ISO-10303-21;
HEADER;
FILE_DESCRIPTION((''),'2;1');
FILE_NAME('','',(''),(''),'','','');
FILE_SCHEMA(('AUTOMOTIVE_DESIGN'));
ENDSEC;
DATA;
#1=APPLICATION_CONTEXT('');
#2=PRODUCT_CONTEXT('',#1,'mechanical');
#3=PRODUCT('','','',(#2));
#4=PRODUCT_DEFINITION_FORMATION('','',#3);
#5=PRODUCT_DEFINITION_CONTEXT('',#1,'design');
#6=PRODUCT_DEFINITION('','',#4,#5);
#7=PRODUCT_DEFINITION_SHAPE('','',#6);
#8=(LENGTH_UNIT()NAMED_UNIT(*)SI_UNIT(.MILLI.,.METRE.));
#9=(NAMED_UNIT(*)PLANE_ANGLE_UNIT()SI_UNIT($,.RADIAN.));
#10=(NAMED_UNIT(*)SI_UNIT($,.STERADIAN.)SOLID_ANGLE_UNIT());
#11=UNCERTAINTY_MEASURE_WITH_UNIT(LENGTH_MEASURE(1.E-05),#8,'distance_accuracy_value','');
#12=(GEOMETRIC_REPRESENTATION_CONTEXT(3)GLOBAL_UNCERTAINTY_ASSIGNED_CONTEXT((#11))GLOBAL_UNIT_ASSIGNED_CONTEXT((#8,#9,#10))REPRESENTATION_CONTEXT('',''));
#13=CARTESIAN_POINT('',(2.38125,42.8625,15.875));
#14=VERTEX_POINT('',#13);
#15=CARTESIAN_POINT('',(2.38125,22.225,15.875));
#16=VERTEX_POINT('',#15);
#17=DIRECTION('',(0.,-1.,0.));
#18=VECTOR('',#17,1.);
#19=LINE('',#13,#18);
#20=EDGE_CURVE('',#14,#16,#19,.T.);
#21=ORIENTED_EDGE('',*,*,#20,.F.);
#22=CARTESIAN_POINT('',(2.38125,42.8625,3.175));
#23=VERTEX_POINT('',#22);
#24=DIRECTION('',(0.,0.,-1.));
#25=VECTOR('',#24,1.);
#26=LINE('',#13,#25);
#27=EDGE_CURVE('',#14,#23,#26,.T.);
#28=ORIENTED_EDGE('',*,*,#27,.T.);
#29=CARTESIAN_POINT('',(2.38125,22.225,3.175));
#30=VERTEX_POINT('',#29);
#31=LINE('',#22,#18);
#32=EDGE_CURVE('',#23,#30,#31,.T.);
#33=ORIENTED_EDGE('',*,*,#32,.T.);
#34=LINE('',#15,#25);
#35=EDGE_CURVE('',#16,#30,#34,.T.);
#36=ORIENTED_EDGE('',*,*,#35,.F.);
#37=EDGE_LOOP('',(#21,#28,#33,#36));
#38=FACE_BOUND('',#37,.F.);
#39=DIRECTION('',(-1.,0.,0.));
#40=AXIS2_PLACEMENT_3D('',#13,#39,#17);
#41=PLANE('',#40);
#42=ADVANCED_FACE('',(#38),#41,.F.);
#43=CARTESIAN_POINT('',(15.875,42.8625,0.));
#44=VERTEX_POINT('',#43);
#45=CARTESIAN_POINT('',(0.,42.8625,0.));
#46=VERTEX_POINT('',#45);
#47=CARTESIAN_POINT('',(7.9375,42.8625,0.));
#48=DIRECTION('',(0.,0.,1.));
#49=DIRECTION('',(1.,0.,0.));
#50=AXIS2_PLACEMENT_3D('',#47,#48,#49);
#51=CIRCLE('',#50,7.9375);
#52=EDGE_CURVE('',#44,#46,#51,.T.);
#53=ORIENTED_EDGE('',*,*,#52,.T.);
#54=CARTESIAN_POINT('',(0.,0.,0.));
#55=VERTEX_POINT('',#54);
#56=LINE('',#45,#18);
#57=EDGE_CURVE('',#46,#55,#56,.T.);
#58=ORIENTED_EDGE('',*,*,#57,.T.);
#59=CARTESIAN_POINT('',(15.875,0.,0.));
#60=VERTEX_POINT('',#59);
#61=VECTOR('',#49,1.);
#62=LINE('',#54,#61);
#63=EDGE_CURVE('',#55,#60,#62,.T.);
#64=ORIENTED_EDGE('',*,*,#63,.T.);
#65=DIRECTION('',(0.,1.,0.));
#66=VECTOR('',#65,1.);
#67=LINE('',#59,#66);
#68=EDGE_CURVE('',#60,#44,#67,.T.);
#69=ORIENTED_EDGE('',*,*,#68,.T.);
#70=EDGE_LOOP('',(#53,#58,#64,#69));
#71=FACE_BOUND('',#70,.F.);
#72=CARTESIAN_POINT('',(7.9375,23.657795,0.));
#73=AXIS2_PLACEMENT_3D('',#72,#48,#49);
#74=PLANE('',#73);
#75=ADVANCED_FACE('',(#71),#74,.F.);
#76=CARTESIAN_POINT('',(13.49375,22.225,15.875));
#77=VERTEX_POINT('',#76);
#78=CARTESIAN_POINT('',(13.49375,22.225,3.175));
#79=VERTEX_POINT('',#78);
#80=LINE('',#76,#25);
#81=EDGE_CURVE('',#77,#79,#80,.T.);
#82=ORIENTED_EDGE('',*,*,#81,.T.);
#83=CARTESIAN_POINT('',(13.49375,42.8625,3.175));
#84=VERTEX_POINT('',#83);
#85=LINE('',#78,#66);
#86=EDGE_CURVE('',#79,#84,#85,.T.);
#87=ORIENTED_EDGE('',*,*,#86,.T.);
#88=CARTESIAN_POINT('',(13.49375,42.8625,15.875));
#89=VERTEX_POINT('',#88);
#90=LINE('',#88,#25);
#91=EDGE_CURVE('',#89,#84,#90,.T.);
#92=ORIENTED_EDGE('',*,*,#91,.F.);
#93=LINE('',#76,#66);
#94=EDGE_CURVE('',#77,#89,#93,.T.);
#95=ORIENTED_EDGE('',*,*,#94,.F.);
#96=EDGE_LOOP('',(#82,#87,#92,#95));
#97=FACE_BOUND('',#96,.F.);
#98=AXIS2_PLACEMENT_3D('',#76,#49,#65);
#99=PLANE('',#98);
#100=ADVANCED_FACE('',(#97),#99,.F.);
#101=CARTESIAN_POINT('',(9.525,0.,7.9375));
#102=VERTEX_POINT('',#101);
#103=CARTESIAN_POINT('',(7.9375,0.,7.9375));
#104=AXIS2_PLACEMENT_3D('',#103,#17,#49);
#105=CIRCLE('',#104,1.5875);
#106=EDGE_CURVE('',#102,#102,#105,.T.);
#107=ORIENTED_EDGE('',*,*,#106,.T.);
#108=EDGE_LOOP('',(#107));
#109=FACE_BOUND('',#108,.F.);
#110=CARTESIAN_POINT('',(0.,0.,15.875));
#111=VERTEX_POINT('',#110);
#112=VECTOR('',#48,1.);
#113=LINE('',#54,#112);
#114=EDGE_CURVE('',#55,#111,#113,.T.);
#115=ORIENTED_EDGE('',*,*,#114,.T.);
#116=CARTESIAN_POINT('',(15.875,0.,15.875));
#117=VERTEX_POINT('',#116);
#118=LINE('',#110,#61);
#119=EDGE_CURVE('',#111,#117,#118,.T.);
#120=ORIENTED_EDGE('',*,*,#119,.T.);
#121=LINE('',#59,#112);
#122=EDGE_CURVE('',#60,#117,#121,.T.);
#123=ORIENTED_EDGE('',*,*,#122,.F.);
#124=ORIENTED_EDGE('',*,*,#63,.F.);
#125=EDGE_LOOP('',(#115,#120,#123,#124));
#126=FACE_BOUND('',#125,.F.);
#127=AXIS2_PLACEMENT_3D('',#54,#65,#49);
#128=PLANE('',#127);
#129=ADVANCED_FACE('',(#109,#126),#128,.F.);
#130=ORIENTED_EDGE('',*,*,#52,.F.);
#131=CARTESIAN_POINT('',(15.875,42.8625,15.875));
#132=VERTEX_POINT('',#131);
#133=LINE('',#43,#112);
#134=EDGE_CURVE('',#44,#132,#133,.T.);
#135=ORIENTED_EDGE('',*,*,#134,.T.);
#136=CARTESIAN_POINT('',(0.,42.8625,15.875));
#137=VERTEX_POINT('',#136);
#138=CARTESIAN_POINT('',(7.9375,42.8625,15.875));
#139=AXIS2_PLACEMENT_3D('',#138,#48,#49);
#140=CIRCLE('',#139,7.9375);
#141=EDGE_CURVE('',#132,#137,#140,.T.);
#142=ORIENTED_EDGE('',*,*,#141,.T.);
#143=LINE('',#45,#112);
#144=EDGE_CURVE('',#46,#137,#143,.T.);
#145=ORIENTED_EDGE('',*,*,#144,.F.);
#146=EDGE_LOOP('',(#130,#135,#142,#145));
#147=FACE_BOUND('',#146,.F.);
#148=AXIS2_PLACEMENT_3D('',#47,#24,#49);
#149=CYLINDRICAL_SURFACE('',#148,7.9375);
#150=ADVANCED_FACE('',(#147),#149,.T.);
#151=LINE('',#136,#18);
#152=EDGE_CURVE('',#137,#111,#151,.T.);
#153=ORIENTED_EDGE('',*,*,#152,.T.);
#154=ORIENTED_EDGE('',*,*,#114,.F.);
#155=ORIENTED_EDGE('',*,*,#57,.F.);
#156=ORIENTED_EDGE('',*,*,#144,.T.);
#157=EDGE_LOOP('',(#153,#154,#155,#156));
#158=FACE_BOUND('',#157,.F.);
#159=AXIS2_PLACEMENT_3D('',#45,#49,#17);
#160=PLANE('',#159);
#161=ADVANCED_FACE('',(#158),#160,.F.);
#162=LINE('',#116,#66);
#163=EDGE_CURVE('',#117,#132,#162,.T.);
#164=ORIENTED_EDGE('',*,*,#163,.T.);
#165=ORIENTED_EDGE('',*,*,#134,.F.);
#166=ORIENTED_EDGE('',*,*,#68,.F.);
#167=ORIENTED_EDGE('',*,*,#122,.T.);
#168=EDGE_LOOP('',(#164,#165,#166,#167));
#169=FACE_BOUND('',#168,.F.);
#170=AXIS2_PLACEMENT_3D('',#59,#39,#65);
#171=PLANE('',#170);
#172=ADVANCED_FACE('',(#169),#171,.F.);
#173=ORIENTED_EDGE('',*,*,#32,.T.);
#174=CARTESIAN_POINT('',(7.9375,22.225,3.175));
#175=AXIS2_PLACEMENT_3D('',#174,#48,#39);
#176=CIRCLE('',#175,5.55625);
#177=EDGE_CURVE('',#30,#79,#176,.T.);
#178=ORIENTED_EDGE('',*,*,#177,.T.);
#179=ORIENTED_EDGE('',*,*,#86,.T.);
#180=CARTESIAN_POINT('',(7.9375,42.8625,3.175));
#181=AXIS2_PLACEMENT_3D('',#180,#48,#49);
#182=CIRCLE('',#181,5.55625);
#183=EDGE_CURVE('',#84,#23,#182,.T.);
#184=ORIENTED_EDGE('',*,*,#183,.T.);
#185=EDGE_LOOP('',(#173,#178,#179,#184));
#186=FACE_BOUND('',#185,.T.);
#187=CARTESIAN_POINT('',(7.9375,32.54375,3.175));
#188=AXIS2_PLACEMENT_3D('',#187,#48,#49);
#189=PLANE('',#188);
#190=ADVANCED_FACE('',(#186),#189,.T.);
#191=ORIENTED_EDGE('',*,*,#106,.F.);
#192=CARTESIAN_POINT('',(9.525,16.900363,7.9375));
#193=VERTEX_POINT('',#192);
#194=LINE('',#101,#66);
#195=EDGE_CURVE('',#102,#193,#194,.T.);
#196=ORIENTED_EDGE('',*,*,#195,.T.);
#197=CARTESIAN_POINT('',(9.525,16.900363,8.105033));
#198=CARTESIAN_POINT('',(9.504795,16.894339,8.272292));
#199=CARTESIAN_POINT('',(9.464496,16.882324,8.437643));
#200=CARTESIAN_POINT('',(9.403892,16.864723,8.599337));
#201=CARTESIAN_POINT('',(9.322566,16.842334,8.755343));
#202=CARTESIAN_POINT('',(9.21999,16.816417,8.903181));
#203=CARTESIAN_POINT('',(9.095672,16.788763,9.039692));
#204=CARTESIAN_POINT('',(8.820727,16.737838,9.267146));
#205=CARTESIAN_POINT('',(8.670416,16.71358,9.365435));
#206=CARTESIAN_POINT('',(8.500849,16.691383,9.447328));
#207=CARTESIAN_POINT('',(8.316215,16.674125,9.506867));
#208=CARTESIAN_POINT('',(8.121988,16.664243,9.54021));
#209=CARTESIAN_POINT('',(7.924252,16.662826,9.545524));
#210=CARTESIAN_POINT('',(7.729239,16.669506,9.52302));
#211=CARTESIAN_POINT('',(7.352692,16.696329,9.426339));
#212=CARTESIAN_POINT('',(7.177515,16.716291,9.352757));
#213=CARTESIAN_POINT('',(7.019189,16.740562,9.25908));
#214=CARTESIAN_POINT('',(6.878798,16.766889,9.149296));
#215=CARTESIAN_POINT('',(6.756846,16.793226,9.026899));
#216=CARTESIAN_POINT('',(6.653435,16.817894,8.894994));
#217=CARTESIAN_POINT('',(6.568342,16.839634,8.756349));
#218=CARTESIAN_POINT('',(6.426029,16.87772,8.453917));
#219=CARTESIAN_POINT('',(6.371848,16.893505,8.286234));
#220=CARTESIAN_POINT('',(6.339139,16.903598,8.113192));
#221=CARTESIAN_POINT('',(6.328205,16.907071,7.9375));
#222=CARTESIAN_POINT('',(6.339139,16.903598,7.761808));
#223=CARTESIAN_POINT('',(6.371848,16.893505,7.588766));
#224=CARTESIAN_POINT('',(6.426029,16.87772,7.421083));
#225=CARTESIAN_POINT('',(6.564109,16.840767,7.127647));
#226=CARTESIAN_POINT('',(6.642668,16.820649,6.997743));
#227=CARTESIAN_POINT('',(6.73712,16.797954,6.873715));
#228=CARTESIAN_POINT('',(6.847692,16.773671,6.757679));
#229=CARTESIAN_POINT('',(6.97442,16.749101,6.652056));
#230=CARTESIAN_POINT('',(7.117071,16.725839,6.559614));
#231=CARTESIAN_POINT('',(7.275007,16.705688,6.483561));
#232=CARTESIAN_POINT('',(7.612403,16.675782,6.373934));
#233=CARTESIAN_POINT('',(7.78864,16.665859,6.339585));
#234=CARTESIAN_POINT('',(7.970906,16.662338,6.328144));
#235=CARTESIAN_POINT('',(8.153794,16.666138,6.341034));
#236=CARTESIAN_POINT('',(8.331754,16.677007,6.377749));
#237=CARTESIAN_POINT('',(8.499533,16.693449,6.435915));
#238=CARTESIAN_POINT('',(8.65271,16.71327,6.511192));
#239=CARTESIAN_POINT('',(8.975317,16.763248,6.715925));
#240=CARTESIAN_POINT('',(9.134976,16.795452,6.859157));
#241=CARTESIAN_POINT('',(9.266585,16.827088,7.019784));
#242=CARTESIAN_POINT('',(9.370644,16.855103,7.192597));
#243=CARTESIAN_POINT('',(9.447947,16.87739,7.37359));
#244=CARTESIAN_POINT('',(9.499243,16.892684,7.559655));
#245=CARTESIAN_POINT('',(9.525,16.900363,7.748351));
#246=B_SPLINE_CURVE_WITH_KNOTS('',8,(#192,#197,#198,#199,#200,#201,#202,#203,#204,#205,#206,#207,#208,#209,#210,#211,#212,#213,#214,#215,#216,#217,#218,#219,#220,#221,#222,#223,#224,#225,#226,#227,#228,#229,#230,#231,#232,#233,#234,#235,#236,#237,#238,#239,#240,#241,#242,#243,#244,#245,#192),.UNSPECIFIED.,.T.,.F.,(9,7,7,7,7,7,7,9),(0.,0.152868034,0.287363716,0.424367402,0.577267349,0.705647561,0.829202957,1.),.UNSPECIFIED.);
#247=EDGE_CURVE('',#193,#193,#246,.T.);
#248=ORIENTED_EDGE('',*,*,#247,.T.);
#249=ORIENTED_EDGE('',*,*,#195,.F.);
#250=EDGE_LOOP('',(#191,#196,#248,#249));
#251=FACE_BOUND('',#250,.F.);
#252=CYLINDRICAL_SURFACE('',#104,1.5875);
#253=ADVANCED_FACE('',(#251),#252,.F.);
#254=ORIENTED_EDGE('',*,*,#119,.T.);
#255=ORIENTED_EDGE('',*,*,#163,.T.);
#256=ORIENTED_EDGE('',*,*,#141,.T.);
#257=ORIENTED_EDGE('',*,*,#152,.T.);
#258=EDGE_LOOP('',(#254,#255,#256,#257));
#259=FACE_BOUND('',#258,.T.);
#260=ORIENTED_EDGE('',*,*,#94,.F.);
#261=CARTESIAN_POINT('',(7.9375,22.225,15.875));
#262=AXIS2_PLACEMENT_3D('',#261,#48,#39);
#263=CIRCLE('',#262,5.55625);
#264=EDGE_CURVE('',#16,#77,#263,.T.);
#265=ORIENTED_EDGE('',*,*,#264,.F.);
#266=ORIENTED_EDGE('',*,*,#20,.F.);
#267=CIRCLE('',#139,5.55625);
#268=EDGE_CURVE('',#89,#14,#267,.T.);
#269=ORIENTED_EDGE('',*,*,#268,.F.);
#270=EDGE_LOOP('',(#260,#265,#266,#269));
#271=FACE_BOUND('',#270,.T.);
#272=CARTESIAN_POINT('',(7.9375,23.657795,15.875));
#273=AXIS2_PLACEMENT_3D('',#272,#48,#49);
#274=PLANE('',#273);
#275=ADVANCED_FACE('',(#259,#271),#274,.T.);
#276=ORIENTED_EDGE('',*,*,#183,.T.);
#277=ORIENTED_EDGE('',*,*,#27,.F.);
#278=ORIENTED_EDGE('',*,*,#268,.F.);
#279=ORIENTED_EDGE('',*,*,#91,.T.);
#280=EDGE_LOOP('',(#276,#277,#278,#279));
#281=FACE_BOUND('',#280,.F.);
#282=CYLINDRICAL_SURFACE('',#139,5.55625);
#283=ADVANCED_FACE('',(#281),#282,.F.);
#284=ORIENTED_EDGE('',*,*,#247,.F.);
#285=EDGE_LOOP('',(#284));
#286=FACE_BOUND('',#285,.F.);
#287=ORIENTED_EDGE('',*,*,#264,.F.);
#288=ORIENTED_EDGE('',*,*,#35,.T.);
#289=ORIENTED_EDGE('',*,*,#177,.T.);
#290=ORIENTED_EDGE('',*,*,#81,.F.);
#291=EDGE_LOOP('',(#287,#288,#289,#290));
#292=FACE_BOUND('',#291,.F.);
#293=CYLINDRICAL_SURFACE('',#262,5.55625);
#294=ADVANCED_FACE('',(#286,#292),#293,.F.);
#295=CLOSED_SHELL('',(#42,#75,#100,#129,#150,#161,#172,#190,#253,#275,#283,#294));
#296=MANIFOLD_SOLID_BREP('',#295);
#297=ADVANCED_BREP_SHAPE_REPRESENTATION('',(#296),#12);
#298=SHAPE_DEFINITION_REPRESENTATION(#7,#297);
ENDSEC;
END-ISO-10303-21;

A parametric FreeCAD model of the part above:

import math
import FreeCAD as App
import Part
import Sketcher
Q = App.Units.Quantity

doc = App.newDocument("Part")
body = doc.addObject("PartDesign::Body", "Body")

# Sketch on XY plane
sketch1 = body.newObject("Sketcher::SketchObject", "Sketch")
sketch1.AttachmentSupport = (doc.getObject("XY_Plane"), [""])
sketch1.MapMode = "FlatFace"
sketch1.addGeometry([
    Part.LineSegment(App.Vector(0, 43, 0), App.Vector(0, 0, 0)),
    Part.LineSegment(App.Vector(0, 0, 0), App.Vector(16, 0, 0)),
    Part.LineSegment(App.Vector(16, 0, 0), App.Vector(16, 43, 0)),
    Part.ArcOfCircle(Part.Circle(App.Vector(8, 43, 0), App.Vector(0, 0, 1), 8), math.radians(0), math.radians(180)),
], False)
sketch1.addConstraint([
    Sketcher.Constraint("Coincident", 0, 2, 1, 1),
    Sketcher.Constraint("Coincident", 1, 2, 2, 1),
    Sketcher.Constraint("Tangent", 2, 2, 3, 1),
    Sketcher.Constraint("Tangent", 3, 2, 0, 1),
    Sketcher.Constraint("Vertical", 0),
    Sketcher.Constraint("Horizontal", 1),
    Sketcher.Constraint("Vertical", 2),
    Sketcher.Constraint("Coincident", 0, 2, -1, 1),
    Sketcher.Constraint("Radius", 3, Q("0.3125 in")),
    Sketcher.Constraint("DistanceY", 0, 2, 0, 1, Q("1.6875 in")),
])
pad1 = body.newObject("PartDesign::Pad", "Pad")
pad1.Profile = sketch1
pad1.Length = Q("0.625 in")

# Sketch on XY plane
sketch2 = body.newObject("Sketcher::SketchObject", "Sketch001")
sketch2.AttachmentSupport = (doc.getObject("XY_Plane"), [""])
sketch2.MapMode = "FlatFace"
sketch2.AttachmentOffset = App.Placement(App.Vector(0, 0, 0.625 * 25.4), App.Rotation())
sketch2.addGeometry([
    Part.LineSegment(App.Vector(2, 43, 0), App.Vector(2, 22, 0)),
    Part.ArcOfCircle(Part.Circle(App.Vector(8, 22, 0), App.Vector(0, 0, 1), 6), math.radians(180), math.radians(360)),
    Part.LineSegment(App.Vector(13, 22, 0), App.Vector(13, 43, 0)),
    Part.ArcOfCircle(Part.Circle(App.Vector(8, 43, 0), App.Vector(0, 0, 1), 6), math.radians(0), math.radians(180)),
], False)
sketch2.addConstraint([
    Sketcher.Constraint("Tangent", 0, 2, 1, 1),
    Sketcher.Constraint("Tangent", 1, 2, 2, 1),
    Sketcher.Constraint("Tangent", 2, 2, 3, 1),
    Sketcher.Constraint("Tangent", 3, 2, 0, 1),
    Sketcher.Constraint("Vertical", 0),
    Sketcher.Constraint("Vertical", 2),
    Sketcher.Constraint("Radius", 1, Q("0.21875 in")),
    Sketcher.Constraint("DistanceY", 0, 2, 0, 1, Q("0.8125 in")),
    Sketcher.Constraint("DistanceX", -1, 1, 1, 3, Q("0.3125 in")),
    Sketcher.Constraint("DistanceY", -1, 1, 1, 3, Q("0.875 in")),
])
pocket1 = body.newObject("PartDesign::Pocket", "Pocket")
pocket1.Profile = sketch2
pocket1.Length = Q("0.5 in")

# Sketch on XZ plane
sketch3 = body.newObject("Sketcher::SketchObject", "Sketch002")
sketch3.AttachmentSupport = (doc.getObject("XZ_Plane"), [""])
sketch3.MapMode = "FlatFace"
sketch3.addGeometry(Part.Circle(App.Vector(7.9, 7.9, 0), App.Vector(0, 0, 1), 1.6), False)
sketch3.addConstraint([
    Sketcher.Constraint("Diameter", 0, Q("0.125 in")),
    Sketcher.Constraint("DistanceX", -1, 1, 0, 3, Q("0.3125 in")),
    Sketcher.Constraint("DistanceY", -1, 1, 0, 3, Q("0.3125 in")),
])
pocket2 = body.newObject("PartDesign::Pocket", "Pocket001")
pocket2.Profile = sketch3
pocket2.Length = 17.900363

doc.recompute()
